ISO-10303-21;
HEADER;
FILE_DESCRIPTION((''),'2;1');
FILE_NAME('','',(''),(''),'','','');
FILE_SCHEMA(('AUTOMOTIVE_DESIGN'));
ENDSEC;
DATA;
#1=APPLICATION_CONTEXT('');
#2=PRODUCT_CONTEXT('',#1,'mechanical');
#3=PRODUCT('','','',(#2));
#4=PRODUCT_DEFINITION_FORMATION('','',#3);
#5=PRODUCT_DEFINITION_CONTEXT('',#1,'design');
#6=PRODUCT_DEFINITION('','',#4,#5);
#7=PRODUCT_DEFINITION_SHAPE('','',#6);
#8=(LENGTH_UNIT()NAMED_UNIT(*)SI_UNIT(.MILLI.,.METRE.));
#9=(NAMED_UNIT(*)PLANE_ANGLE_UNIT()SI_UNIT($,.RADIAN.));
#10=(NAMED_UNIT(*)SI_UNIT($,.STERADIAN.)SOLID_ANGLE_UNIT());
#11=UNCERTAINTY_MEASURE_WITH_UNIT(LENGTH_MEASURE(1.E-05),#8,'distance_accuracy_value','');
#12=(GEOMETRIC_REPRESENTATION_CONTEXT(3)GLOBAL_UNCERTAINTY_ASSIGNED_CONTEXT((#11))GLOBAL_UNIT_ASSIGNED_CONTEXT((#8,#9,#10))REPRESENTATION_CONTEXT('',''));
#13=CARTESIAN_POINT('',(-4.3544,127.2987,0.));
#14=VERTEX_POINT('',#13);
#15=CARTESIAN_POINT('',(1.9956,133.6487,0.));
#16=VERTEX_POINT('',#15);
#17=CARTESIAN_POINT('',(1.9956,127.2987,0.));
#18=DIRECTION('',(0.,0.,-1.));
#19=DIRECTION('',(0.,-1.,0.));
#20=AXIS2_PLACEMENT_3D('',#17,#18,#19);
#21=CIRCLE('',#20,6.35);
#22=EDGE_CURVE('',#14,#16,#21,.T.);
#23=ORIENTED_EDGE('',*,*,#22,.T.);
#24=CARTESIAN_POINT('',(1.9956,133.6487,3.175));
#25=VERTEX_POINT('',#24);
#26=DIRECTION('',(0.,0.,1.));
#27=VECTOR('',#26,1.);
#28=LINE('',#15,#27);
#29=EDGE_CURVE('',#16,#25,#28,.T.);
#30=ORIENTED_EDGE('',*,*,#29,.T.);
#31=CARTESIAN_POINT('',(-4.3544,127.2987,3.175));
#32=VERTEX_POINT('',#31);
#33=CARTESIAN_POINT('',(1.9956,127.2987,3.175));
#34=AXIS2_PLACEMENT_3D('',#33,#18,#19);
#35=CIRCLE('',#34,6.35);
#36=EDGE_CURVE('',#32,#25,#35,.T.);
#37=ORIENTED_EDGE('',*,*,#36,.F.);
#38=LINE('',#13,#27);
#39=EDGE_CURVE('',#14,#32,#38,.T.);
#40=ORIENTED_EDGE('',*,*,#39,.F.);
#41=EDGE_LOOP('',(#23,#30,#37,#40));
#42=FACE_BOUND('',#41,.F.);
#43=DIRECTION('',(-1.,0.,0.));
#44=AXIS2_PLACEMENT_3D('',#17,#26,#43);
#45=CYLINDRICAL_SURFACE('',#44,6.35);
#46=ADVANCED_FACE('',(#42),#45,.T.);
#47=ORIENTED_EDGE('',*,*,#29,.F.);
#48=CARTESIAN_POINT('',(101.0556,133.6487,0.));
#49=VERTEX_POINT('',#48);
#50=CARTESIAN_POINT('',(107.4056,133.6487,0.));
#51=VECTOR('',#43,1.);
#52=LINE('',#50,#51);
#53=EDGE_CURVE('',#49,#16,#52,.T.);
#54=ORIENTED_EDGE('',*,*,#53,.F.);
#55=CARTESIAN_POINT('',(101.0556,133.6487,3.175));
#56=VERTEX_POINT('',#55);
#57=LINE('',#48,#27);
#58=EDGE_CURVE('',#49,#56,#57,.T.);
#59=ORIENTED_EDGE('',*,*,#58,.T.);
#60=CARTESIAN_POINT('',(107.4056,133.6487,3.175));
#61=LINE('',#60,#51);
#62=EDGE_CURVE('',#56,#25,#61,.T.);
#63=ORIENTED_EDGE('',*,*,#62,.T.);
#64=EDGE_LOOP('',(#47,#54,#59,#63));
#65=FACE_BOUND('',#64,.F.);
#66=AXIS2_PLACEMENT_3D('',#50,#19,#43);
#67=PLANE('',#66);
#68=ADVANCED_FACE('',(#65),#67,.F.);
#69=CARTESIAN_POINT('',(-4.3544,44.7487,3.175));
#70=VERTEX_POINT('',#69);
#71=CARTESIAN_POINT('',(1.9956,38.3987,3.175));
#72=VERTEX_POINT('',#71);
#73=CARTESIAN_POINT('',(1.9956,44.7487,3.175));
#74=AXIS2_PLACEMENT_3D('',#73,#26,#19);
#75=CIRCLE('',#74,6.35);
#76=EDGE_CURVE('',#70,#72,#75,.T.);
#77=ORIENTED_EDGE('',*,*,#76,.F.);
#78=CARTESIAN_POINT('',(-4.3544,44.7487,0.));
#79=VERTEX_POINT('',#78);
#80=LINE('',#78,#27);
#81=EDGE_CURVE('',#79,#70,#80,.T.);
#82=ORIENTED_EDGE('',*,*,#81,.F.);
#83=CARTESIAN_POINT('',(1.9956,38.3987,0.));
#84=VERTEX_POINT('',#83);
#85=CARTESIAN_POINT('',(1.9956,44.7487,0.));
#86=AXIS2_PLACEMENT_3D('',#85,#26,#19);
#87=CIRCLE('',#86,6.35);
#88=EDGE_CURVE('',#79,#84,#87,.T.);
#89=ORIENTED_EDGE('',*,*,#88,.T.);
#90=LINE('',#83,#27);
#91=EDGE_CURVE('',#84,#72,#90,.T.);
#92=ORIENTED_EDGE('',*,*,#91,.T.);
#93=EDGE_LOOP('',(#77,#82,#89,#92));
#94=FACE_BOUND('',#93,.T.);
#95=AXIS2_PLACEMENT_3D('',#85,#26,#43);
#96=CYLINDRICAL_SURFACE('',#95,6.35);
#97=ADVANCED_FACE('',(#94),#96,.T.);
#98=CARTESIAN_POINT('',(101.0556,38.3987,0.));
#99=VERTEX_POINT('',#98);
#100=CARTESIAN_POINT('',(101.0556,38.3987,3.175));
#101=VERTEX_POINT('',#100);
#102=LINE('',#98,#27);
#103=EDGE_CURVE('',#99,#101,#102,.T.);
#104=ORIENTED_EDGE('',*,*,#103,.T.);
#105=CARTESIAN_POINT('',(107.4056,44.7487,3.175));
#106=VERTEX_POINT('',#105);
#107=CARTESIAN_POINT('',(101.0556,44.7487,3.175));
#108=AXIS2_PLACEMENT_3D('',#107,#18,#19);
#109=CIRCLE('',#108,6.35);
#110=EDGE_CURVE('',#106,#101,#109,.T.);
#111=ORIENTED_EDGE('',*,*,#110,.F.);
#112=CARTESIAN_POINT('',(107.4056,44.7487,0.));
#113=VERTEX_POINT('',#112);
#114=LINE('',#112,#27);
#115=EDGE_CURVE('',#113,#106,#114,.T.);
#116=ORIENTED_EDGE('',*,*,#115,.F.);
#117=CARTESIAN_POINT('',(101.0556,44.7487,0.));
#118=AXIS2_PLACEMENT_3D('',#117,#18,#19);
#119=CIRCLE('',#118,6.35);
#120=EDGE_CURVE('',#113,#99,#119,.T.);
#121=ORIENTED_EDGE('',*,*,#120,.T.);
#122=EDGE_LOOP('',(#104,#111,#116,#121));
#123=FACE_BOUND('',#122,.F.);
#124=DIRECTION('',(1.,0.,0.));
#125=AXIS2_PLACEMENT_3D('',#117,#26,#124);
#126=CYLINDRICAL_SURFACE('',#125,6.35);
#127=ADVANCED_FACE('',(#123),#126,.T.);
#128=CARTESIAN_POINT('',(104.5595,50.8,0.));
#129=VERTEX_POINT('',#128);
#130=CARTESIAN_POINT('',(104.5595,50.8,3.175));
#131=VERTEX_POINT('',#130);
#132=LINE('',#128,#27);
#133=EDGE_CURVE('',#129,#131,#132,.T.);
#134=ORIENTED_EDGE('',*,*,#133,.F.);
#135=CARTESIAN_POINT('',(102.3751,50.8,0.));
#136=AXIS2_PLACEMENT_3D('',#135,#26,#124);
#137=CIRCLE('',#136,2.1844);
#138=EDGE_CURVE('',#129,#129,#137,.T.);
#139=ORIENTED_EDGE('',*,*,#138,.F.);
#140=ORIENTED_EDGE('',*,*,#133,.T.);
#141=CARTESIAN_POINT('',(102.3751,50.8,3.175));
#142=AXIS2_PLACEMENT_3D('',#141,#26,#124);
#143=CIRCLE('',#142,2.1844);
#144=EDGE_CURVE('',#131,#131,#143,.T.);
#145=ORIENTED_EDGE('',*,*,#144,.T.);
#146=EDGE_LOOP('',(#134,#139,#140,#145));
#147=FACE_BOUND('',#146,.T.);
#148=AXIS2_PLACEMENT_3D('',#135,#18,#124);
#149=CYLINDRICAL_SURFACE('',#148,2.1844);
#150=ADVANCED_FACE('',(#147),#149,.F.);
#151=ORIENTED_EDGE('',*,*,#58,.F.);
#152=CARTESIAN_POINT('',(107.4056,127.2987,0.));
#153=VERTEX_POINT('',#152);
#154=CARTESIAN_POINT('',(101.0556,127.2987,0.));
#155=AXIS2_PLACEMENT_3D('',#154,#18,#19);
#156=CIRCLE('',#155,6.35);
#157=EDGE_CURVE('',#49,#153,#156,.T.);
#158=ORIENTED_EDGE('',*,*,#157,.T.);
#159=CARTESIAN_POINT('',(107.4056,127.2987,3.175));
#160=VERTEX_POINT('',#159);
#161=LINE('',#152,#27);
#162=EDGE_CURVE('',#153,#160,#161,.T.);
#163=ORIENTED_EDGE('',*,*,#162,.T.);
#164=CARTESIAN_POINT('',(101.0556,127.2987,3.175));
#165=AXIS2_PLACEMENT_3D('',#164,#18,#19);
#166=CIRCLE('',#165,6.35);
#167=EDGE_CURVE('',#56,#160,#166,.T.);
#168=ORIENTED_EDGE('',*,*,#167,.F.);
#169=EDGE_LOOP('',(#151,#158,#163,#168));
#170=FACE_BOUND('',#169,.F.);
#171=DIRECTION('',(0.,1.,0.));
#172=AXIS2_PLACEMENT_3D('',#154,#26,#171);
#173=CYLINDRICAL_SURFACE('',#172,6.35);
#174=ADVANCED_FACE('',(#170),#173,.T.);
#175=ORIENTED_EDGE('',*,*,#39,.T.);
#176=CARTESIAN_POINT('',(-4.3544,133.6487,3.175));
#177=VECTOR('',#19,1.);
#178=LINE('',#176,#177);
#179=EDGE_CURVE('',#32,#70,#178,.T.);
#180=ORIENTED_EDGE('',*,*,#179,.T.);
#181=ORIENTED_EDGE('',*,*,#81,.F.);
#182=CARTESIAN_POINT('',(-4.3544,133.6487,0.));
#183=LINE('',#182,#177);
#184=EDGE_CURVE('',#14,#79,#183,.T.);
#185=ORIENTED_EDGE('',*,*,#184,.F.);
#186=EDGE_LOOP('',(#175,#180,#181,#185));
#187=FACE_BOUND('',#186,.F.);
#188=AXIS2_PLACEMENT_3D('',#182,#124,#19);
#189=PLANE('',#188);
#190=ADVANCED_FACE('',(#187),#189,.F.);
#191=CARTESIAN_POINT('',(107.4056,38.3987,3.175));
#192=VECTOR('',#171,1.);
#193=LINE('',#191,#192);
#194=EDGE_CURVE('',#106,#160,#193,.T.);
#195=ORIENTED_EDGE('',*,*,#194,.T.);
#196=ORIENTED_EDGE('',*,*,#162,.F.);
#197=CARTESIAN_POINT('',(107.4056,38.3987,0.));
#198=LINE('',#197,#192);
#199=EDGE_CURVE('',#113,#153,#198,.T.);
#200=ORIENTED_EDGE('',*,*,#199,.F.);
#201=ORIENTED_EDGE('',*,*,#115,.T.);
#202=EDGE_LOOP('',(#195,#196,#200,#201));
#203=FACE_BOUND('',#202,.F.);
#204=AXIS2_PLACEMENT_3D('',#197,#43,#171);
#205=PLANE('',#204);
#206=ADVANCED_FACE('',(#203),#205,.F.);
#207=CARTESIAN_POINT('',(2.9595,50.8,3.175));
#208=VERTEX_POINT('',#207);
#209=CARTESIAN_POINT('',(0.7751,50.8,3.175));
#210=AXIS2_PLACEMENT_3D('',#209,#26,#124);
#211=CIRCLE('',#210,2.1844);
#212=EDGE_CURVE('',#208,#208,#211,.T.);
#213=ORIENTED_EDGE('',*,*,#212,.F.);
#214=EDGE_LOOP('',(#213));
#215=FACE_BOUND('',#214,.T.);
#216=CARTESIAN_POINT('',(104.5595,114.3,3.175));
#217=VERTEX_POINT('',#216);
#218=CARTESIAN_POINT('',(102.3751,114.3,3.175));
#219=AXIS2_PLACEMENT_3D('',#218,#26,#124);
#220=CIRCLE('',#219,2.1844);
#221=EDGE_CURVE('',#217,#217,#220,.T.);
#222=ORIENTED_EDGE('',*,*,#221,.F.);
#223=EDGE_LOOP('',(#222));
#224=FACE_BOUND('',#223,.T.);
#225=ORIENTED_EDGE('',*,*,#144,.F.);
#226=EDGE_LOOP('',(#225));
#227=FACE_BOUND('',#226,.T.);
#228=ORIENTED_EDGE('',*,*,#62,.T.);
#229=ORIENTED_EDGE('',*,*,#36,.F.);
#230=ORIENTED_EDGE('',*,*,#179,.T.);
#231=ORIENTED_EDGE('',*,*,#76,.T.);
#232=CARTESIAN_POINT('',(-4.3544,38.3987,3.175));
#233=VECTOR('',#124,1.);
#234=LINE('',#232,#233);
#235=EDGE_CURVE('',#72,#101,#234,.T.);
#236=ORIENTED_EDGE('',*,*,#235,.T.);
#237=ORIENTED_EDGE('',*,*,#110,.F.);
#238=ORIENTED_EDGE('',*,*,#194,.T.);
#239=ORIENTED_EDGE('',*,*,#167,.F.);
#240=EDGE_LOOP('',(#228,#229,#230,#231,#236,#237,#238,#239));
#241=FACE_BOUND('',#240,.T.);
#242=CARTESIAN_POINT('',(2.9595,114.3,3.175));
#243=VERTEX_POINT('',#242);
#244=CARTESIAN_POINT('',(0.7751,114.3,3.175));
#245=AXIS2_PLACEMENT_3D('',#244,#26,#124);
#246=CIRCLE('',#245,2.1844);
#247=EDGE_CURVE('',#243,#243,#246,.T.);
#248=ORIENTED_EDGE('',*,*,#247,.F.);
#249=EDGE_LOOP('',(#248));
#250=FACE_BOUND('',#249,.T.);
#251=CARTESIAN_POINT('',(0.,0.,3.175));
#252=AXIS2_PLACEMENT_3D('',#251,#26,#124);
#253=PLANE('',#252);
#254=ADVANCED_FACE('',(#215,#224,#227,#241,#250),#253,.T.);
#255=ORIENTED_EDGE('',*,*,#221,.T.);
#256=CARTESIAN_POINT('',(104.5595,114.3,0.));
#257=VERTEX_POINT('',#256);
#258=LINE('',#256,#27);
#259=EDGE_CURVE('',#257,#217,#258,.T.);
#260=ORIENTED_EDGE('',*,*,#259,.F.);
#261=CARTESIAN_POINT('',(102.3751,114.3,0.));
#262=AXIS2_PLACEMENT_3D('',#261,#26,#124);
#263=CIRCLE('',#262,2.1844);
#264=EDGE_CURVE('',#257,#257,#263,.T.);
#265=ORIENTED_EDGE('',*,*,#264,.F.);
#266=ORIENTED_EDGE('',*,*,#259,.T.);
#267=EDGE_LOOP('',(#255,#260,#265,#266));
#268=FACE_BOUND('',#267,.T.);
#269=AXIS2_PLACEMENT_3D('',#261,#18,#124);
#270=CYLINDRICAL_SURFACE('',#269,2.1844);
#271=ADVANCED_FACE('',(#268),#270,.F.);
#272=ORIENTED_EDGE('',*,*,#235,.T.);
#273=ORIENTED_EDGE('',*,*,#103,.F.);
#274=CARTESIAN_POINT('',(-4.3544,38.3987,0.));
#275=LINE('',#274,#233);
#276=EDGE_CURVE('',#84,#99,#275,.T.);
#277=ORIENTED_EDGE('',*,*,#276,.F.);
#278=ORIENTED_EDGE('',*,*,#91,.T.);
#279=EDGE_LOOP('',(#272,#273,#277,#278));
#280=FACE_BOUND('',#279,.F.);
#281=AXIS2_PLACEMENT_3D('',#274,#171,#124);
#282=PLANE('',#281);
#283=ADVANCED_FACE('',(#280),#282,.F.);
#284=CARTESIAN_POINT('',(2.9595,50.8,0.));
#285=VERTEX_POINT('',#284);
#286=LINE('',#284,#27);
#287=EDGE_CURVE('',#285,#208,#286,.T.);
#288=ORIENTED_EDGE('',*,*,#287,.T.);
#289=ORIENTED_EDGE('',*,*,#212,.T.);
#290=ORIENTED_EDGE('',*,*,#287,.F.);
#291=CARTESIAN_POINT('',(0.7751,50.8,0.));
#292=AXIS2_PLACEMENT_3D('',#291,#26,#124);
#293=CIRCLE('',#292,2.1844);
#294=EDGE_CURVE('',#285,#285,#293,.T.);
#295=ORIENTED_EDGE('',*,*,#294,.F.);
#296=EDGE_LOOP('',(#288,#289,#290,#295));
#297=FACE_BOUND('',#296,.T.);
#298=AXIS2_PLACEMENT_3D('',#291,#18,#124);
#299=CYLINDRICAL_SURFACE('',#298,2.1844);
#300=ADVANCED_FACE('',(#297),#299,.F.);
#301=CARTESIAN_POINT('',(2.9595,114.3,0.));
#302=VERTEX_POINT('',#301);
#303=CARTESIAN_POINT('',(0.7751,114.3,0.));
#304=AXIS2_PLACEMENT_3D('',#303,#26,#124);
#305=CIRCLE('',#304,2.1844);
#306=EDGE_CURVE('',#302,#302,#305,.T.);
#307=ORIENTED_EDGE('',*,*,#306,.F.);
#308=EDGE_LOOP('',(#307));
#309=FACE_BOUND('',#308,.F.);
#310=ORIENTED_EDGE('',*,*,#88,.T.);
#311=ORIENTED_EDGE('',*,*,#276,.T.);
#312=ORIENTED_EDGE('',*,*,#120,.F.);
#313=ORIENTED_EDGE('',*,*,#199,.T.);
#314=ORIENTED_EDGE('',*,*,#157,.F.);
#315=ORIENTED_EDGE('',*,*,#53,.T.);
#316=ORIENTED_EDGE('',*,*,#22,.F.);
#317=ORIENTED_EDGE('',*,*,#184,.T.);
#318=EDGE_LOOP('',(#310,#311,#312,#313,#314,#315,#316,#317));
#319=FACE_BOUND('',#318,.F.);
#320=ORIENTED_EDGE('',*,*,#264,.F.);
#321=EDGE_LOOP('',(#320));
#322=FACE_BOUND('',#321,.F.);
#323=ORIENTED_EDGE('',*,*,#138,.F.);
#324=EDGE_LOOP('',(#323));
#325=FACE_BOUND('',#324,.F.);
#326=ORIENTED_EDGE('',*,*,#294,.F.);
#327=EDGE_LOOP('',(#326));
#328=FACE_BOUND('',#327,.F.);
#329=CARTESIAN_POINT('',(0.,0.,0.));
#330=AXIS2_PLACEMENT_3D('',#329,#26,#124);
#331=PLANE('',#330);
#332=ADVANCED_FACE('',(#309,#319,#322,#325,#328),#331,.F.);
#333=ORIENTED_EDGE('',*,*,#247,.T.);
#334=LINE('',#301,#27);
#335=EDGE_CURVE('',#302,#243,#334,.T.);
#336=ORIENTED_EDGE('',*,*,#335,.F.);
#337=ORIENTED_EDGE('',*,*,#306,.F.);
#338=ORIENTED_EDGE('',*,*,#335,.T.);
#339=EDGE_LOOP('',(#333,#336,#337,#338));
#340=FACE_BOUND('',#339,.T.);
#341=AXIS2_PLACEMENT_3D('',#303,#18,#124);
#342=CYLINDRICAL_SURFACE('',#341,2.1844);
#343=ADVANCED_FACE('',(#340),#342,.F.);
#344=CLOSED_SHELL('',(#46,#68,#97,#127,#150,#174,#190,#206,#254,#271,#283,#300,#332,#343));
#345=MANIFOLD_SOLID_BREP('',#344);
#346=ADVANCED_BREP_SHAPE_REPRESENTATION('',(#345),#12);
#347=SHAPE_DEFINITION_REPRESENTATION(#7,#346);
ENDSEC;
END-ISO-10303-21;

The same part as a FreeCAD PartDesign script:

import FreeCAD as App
import Part
import Sketcher
Q = App.Units.Quantity


def edges_at(feature, points):
    """Names of the edges that pass closest to the given points."""
    edges = feature.Shape.Edges
    near = lambda p: min(range(len(edges)), key=lambda i: edges[i].distToShape(Part.Vertex(*p))[0])
    return sorted({f"Edge{near(p) + 1}" for p in points})

doc = App.newDocument("Part")
body = doc.addObject("PartDesign::Body", "Body")

# Sketch on XY plane
sketch1 = body.newObject("Sketcher::SketchObject", "Sketch")
sketch1.AttachmentSupport = (doc.getObject("XY_Plane"), [""])
sketch1.MapMode = "FlatFace"
sketch1.addGeometry([
    Part.LineSegment(App.Vector(-4.4, 133.6, 0), App.Vector(-4.4, 38.4, 0)),  # 0
    Part.LineSegment(App.Vector(-4.4, 38.4, 0), App.Vector(107.4, 38.4, 0)),  # 1
    Part.LineSegment(App.Vector(107.4, 38.4, 0), App.Vector(107.4, 133.6, 0)),  # 2
    Part.LineSegment(App.Vector(107.4, 133.6, 0), App.Vector(-4.4, 133.6, 0)),  # 3
    Part.Circle(App.Vector(0.8, 50.8, 0), App.Vector(0, 0, 1), 2.2),  # 4
    Part.Circle(App.Vector(102.4, 50.8, 0), App.Vector(0, 0, 1), 2.2),  # 5
    Part.Circle(App.Vector(0.8, 114.3, 0), App.Vector(0, 0, 1), 2.2),  # 6
    Part.Circle(App.Vector(102.4, 114.3, 0), App.Vector(0, 0, 1), 2.2),  # 7
], False)
sketch1.addConstraint([
    Sketcher.Constraint("Coincident", 0, 2, 1, 1),
    Sketcher.Constraint("Coincident", 1, 2, 2, 1),
    Sketcher.Constraint("Coincident", 2, 2, 3, 1),
    Sketcher.Constraint("Coincident", 3, 2, 0, 1),
    Sketcher.Constraint("Vertical", 0),
    Sketcher.Constraint("Horizontal", 1),
    Sketcher.Constraint("Vertical", 2),
    Sketcher.Constraint("Horizontal", 3),
    Sketcher.Constraint("Equal", 4, 5),
    Sketcher.Constraint("Equal", 5, 6),
    Sketcher.Constraint("Equal", 6, 7),
    Sketcher.Constraint("Horizontal", 4, 3, 5, 3),
    Sketcher.Constraint("Horizontal", 6, 3, 7, 3),
    Sketcher.Constraint("Vertical", 4, 3, 6, 3),
    Sketcher.Constraint("Vertical", 5, 3, 7, 3),
    Sketcher.Constraint("DistanceX", 1, 1, 1, 2, Q("4.4 in")),
    Sketcher.Constraint("DistanceY", 0, 2, 0, 1, Q("3.75 in")),
    Sketcher.Constraint("Diameter", 4, Q("0.172 in")),
    Sketcher.Constraint("DistanceY", -1, 1, 4, 3, Q("2 in")),
    Sketcher.Constraint("DistanceX", 4, 3, 5, 3, Q("4 in")),
    Sketcher.Constraint("DistanceY", -1, 1, 6, 3, Q("4.5 in")),
    Sketcher.Constraint("DistanceX", -1, 1, 4, 3, Q("0.0305118 in")),
    Sketcher.Constraint("DistanceX", 0, 2, -1, 1, 4.3544),
    Sketcher.Constraint("DistanceY", -1, 1, 0, 2, 38.3987),
])
pad1 = body.newObject("PartDesign::Pad", "Pad")
pad1.Profile = sketch1
pad1.Length = Q("0.125 in")
doc.recompute()

fillet = body.newObject("PartDesign::Fillet", "Fillet")
fillet.Base = (pad1, edges_at(pad1, [
    (-4.354, 38.399, 1.587),
    (107.406, 38.399, 1.587),
    (-4.354, 133.649, 1.587),
    (107.406, 133.649, 1.587),
]))
fillet.Radius = Q("0.25 in")

doc.recompute()
